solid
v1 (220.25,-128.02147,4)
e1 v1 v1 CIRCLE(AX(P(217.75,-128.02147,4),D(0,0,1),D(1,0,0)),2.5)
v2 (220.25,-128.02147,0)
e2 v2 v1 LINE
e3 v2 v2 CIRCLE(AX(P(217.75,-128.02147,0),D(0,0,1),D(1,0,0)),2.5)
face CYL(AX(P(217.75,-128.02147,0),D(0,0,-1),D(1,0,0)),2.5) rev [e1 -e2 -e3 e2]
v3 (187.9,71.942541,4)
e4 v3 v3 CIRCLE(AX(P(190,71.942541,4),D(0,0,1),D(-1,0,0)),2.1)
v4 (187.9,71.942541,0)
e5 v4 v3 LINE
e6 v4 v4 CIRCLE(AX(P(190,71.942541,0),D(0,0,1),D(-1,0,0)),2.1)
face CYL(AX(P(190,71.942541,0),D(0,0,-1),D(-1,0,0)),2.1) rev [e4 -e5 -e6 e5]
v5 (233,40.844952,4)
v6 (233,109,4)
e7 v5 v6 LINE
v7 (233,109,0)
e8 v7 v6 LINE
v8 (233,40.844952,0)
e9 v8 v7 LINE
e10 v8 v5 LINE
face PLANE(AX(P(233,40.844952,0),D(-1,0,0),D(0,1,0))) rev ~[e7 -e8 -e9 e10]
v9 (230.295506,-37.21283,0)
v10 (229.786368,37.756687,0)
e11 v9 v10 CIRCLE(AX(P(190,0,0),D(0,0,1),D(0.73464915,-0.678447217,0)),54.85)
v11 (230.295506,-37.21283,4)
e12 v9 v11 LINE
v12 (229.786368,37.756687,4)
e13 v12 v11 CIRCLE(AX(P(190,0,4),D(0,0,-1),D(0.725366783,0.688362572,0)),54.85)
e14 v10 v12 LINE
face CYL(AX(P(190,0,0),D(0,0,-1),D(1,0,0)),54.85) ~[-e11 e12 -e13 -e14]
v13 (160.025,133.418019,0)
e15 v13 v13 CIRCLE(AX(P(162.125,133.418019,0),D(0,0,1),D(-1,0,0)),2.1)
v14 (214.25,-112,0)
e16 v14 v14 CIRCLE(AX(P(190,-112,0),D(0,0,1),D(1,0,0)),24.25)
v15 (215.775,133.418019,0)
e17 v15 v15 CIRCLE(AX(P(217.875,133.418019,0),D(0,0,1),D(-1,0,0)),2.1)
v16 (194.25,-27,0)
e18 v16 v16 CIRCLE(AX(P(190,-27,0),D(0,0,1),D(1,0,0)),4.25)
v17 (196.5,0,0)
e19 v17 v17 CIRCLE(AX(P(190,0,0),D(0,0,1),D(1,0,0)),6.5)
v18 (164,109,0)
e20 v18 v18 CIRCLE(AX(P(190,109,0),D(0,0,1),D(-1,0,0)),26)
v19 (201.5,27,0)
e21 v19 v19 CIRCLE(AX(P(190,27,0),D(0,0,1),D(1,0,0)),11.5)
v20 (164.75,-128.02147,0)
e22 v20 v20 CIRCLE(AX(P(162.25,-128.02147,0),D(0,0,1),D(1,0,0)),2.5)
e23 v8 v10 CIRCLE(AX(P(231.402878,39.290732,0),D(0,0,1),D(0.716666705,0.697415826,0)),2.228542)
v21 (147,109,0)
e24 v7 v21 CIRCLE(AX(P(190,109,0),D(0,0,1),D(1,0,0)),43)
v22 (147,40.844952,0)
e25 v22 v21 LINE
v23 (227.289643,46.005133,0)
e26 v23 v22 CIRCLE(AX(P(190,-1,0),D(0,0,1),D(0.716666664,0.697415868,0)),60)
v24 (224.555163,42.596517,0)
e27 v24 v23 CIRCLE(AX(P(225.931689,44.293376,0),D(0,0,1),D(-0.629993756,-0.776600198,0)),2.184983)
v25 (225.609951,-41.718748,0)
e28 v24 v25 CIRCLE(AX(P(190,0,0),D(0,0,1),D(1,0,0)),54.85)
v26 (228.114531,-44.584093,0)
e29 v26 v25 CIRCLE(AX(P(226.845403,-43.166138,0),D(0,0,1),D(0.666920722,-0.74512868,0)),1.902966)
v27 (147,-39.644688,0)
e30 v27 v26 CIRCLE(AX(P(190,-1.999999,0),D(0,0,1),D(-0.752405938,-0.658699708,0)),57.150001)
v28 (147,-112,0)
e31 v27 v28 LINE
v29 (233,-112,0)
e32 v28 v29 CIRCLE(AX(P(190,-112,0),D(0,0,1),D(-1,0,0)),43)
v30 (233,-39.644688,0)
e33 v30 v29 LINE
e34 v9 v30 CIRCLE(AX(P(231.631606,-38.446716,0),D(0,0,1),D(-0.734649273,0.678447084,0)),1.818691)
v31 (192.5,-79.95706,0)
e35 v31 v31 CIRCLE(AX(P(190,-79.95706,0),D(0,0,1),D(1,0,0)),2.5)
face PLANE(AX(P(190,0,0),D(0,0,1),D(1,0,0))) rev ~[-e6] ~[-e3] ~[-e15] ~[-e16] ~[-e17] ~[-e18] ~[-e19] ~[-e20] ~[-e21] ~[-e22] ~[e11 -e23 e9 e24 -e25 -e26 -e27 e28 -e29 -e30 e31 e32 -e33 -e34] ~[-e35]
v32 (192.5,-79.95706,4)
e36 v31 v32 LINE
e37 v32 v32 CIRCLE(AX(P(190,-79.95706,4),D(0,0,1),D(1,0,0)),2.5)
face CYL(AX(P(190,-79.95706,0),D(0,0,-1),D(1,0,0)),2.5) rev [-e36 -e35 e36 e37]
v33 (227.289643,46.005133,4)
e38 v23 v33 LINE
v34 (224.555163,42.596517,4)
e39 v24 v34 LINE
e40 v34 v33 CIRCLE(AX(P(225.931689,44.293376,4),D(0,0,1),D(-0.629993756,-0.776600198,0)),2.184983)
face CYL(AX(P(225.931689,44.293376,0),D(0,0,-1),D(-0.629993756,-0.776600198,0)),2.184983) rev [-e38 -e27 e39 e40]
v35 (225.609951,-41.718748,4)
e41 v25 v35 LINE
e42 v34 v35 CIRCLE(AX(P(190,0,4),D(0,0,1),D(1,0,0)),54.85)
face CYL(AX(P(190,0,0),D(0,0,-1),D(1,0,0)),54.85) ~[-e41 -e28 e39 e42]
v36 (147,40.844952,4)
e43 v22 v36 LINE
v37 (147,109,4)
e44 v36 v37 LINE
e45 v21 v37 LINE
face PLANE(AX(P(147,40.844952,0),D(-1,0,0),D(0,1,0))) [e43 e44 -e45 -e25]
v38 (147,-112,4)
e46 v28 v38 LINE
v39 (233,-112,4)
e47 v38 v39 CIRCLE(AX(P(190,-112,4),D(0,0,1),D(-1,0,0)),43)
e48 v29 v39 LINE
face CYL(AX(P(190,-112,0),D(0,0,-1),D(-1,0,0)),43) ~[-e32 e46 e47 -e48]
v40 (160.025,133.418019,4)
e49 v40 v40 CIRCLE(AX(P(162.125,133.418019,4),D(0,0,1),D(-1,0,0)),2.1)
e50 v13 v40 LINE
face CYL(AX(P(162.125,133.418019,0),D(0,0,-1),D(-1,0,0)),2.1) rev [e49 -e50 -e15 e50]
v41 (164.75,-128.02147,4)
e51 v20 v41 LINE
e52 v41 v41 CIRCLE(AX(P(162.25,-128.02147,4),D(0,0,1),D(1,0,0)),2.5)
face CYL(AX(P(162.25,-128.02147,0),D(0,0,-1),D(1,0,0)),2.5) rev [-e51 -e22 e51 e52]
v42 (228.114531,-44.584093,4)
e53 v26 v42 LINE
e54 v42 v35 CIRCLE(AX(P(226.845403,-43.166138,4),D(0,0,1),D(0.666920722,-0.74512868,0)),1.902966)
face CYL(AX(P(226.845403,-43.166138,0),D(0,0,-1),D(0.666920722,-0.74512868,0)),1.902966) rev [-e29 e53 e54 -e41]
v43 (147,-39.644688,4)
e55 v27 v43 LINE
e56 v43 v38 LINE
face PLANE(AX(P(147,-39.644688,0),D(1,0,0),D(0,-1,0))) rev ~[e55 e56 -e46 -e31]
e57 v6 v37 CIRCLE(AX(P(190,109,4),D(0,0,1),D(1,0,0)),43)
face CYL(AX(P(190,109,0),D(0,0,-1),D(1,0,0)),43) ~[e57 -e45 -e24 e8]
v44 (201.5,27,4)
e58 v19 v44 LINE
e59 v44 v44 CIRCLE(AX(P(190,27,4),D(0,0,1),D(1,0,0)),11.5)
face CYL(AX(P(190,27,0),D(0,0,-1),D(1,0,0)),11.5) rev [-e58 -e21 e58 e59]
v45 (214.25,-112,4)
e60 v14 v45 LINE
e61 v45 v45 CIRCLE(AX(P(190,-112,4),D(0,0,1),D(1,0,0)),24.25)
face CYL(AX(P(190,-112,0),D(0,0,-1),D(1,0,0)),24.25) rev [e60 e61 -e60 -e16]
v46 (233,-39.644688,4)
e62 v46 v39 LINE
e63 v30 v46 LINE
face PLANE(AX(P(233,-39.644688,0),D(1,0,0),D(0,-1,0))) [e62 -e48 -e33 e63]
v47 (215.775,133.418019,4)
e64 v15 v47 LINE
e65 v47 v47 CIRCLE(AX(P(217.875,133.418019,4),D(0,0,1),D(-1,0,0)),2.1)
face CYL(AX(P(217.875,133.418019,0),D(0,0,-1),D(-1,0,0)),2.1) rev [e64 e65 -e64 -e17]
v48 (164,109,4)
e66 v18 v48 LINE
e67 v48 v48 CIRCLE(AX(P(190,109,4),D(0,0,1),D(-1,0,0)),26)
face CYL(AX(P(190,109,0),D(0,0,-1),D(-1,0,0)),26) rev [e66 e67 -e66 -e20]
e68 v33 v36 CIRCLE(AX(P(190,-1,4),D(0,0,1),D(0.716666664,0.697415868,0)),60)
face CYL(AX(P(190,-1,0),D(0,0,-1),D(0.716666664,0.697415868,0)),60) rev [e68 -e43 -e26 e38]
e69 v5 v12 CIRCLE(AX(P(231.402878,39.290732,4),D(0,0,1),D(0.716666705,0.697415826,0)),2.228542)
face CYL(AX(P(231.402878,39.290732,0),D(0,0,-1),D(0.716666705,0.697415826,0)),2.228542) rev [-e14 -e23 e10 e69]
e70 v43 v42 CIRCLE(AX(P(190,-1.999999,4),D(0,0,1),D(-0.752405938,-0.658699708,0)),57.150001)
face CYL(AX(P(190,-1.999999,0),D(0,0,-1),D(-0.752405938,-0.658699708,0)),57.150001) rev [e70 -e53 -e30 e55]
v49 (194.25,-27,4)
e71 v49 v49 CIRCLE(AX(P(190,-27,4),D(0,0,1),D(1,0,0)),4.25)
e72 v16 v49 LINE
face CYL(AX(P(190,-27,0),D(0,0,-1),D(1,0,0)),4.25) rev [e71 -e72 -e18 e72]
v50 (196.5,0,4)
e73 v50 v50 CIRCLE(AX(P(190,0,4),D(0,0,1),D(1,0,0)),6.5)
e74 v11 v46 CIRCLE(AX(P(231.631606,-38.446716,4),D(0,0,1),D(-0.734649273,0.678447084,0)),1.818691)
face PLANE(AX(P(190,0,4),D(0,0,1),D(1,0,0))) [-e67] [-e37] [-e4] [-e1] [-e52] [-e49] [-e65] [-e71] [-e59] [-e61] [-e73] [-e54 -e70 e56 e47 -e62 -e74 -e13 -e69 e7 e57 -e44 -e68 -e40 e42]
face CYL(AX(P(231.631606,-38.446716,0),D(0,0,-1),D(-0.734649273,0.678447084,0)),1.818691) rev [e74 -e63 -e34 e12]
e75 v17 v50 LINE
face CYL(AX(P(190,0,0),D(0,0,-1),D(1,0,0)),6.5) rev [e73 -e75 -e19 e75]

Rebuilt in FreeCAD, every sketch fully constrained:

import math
import FreeCAD as App
import Part
import Sketcher

doc = App.newDocument("Part")
body = doc.addObject("PartDesign::Body", "Body")

# Sketch on XY plane
sketch1 = doc.addObject("Sketcher::SketchObject", "Sketch")
body.addObject(sketch1)
sketch1.AttachmentSupport = (doc.XY_Plane, [""])
sketch1.MapMode = "FlatFace"
sketch1.AttachmentOffset = App.Placement(App.Vector(0, 0, 150), App.Rotation())
sketch1.addGeometry([
    Part.Circle(App.Vector(0, 0, 0), App.Vector(0, 0, 1), 54.9),
    Part.Circle(App.Vector(0, -27, 0), App.Vector(0, 0, 1), 4.2),
    Part.Circle(App.Vector(0, 0, 0), App.Vector(0, 0, 1), 6.5),
    Part.Circle(App.Vector(0, 27, 0), App.Vector(0, 0, 1), 11.5),
], False)
sketch1.addConstraint([
    Sketcher.Constraint("Coincident", 0, 3, -1, 1),
    Sketcher.Constraint("Coincident", 2, 3, -1, 1),
    Sketcher.Constraint("Symmetric", 1, 3, 3, 3, -1, 1),
    Sketcher.Constraint("PointOnObject", 1, 3, -2),
    Sketcher.Constraint("Diameter", 2, 13.0),
    Sketcher.Constraint("Diameter", 3, 23.0),
    Sketcher.Constraint("Diameter", 0, 109.7),
    Sketcher.Constraint("Diameter", 1, 8.5),
    Sketcher.Constraint("DistanceY", 1, 3, -1, 1, 27.0),
])
pad1 = doc.addObject("PartDesign::Pad", "Pad")
body.addObject(pad1)
pad1.Profile = sketch1
pad1.Length = 4
body2 = doc.addObject("PartDesign::Body", "Body001")
doc.recompute()

body.Placement = App.Placement(App.Vector(190, 0, -150), App.Rotation(App.Vector(0, 0, 1), 0))
boolean = doc.addObject("PartDesign::Boolean", "Boolean")
body2.addObject(boolean)
boolean.Type = "Fuse"
boolean.addObjects([body])
body3 = doc.addObject("PartDesign::Body", "Body002")
body3.AllowCompound = True

# Sketch on XY plane
sketch2 = doc.addObject("Sketcher::SketchObject", "Sketch001")
body3.addObject(sketch2)
sketch2.AttachmentSupport = (doc.getObject("XY_Plane002"), [""])
sketch2.MapMode = "FlatFace"
sketch2.addGeometry([
    Part.ArcOfCircle(Part.Circle(App.Vector(231.402878, 39.290732, 0), App.Vector(0, 0, 1), 2.228542), math.radians(44.220041), math.radians(223.500628)),  # 0
    Part.ArcOfCircle(Part.Circle(App.Vector(189.999941, -1.000065, 0), App.Vector(0, 0, 1), 60.000088), math.radians(44.22005), math.radians(51.574675)),  # 1
    Part.ArcOfCircle(Part.Circle(App.Vector(225.931689, 44.293376, 0), App.Vector(0, 0, 1), 2.184983), math.radians(-129.049662), math.radians(51.574685)),  # 2
    Part.ArcOfCircle(Part.Circle(App.Vector(190.00001, 0.000017, 0), App.Vector(0, 0, 1), 54.849981), math.radians(43.500626), math.radians(50.950328)),  # 3
    Part.ArcOfCircle(Part.Circle(App.Vector(231.631606, -38.446716, 0), App.Vector(0, 0, 1), 1.818691), math.radians(137.277588), math.radians(318.799194)),  # 4
    Part.ArcOfCircle(Part.Circle(App.Vector(189.999958, 0.000041, 0), App.Vector(0, 0, 1), 54.850059), math.radians(-49.516854), math.radians(-42.722424)),  # 5
    Part.ArcOfCircle(Part.Circle(App.Vector(226.845403, -43.166138, 0), App.Vector(0, 0, 1), 1.902966), math.radians(-48.170153), math.radians(130.483156)),  # 6
    Part.ArcOfCircle(Part.Circle(App.Vector(189.999978, -1.99997, 0), App.Vector(0, 0, 1), 57.150037), math.radians(-48.17014), math.radians(-41.200788)),  # 7
], False)
sketch2.addConstraint([
    Sketcher.Constraint("Coincident", 0, 1, 1, 1),
    Sketcher.Constraint("Coincident", 1, 2, 2, 2),
    Sketcher.Constraint("Coincident", 2, 1, 3, 2),
    Sketcher.Constraint("Coincident", 3, 1, 0, 2),
    Sketcher.Constraint("Coincident", 4, 1, 5, 2),
    Sketcher.Constraint("Coincident", 5, 1, 6, 2),
    Sketcher.Constraint("Coincident", 6, 1, 7, 1),
    Sketcher.Constraint("Coincident", 7, 2, 4, 2),
    Sketcher.Constraint("DistanceX", -1, 1, 0, 1, 233.0),
    Sketcher.Constraint("DistanceX", -1, 1, 7, 2, 233.0),
    Sketcher.Constraint("Radius", 0, 2.228542),
    Sketcher.Constraint("Radius", 3, 54.849981),
    Sketcher.Constraint("Radius", 4, 1.818691),
    Sketcher.Constraint("Radius", 5, 54.850059),
    Sketcher.Constraint("Radius", 1, 60.000088),
    Sketcher.Constraint("Radius", 2, 2.184983),
    Sketcher.Constraint("Radius", 6, 1.902966),
    Sketcher.Constraint("Radius", 7, 57.150037),
    Sketcher.Constraint("DistanceY", 0, 3, 1, 2, 6.714401),
    Sketcher.Constraint("DistanceY", 3, 3, 2, 1, 42.5965),
    Sketcher.Constraint("DistanceX", 4, 1, 4, 3, 1.3361),
    Sketcher.Constraint("DistanceX", -1, 1, 0, 3, 231.402878),
    Sketcher.Constraint("DistanceY", -1, 1, 0, 3, 39.290732),
    Sketcher.Constraint("DistanceX", -1, 1, 1, 3, 189.999941),
    Sketcher.Constraint("DistanceX", -1, 1, 2, 3, 225.931689),
    Sketcher.Constraint("DistanceX", -1, 1, 5, 3, 189.999958),
    Sketcher.Constraint("DistanceY", 6, 3, -1, 1, 43.166138),
    Sketcher.Constraint("DistanceX", -1, 1, 7, 3, 189.999978),
    Sketcher.Constraint("DistanceY", 7, 3, -1, 1, 1.99997),
    Sketcher.Constraint("DistanceX", -1, 1, 3, 1, 229.786368),
    Sketcher.Constraint("DistanceX", -1, 1, 5, 1, 225.609951),
    Sketcher.Constraint("DistanceX", -1, 1, 6, 1, 228.114531),
])
pad2 = doc.addObject("PartDesign::Pad", "Pad001")
body3.addObject(pad2)
pad2.Profile = sketch2
pad2.Length = 4
doc.recompute()

boolean2 = doc.addObject("PartDesign::Boolean", "Boolean001")
body3.addObject(boolean2)
boolean2.Type = "Fuse"
boolean2.addObjects([body2])
body4 = doc.addObject("PartDesign::Body", "Body003")

# Sketch on XY plane
sketch3 = doc.addObject("Sketcher::SketchObject", "Sketch002")
body4.addObject(sketch3)
sketch3.AttachmentSupport = (doc.getObject("XY_Plane003"), [""])
sketch3.MapMode = "FlatFace"
sketch3.addGeometry([
    Part.ArcOfCircle(Part.Circle(App.Vector(0, 0, 0), App.Vector(0, 0, 1), 57.2), math.radians(-139), math.radians(-41)),  # 0
    Part.LineSegment(App.Vector(-43, -37.6, 0), App.Vector(-43, -110, 0)),  # 1
    Part.ArcOfCircle(Part.Circle(App.Vector(0, -110, 0), App.Vector(0, 0, 1), 43), math.radians(180), math.radians(360)),  # 2
    Part.LineSegment(App.Vector(43, -110, 0), App.Vector(43, -37.6, 0)),  # 3
    Part.Circle(App.Vector(27.8, -126, 0), App.Vector(0, 0, 1), 2.5),  # 4
    Part.Circle(App.Vector(-27.8, -126, 0), App.Vector(0, 0, 1), 2.5),  # 5
    Part.Circle(App.Vector(0, -110, 0), App.Vector(0, 0, 1), 24.2),  # 6
    Part.Circle(App.Vector(0, -78, 0), App.Vector(0, 0, 1), 2.5),  # 7
], False)
sketch3.addConstraint([
    Sketcher.Constraint("Coincident", 0, 1, 1, 1),
    Sketcher.Constraint("Tangent", 1, 2, 2, 1),
    Sketcher.Constraint("Tangent", 2, 2, 3, 1),
    Sketcher.Constraint("Coincident", 3, 2, 0, 2),
    Sketcher.Constraint("Vertical", 1),
    Sketcher.Constraint("Vertical", 3),
    Sketcher.Constraint("Coincident", 0, 3, -1, 1),
    Sketcher.Constraint("Coincident", 6, 3, 2, 3),
    Sketcher.Constraint("Equal", 4, 5),
    Sketcher.Constraint("Equal", 5, 7),
    Sketcher.Constraint("Symmetric", 4, 3, 5, 3, -2),
    Sketcher.Constraint("PointOnObject", 2, 3, -2),
    Sketcher.Constraint("PointOnObject", 7, 3, -2),
    Sketcher.Constraint("Diameter", 4, 5.0),
    Sketcher.Constraint("Radius", 2, 43.0),
    Sketcher.Constraint("Diameter", 6, 48.5),
    Sketcher.Constraint("Radius", 0, 57.150001),
    Sketcher.Constraint("DistanceY", 2, 3, -1, 1, 110.0),
    Sketcher.Constraint("DistanceX", 5, 3, 4, 3, 55.5),
    Sketcher.Constraint("DistanceY", 4, 3, -1, 1, 126.02147),
    Sketcher.Constraint("DistanceY", 7, 3, -1, 1, 77.95706),
])
pad3 = doc.addObject("PartDesign::Pad", "Pad002")
body4.addObject(pad3)
pad3.Profile = sketch3
pad3.Length = 4
body5 = doc.addObject("PartDesign::Body", "Body004")
doc.recompute()

body4.Placement = App.Placement(App.Vector(190, -2, 0), App.Rotation(App.Vector(0, 0, 1), 0))
boolean3 = doc.addObject("PartDesign::Boolean", "Boolean002")
body5.addObject(boolean3)
boolean3.Type = "Fuse"
boolean3.addObjects([body4])
doc.recompute()

boolean4 = doc.addObject("PartDesign::Boolean", "Boolean003")
body5.addObject(boolean4)
boolean4.Type = "Fuse"
boolean4.addObjects([body3])
body6 = doc.addObject("PartDesign::Body", "Body005")

# Sketch on XY plane
sketch4 = doc.addObject("Sketcher::SketchObject", "Sketch003")
body6.addObject(sketch4)
sketch4.AttachmentSupport = (doc.getObject("XY_Plane005"), [""])
sketch4.MapMode = "FlatFace"
sketch4.addGeometry([
    Part.ArcOfCircle(Part.Circle(App.Vector(0, 0, 0), App.Vector(0, 0, 1), 60), math.radians(-136), math.radians(-44)),  # 0
    Part.LineSegment(App.Vector(-43, -41.8, 0), App.Vector(-43, -110, 0)),  # 1
    Part.ArcOfCircle(Part.Circle(App.Vector(0, -110, 0), App.Vector(0, 0, 1), 43), math.radians(180), math.radians(360)),  # 2
    Part.LineSegment(App.Vector(43, -110, 0), App.Vector(43, -41.8, 0)),  # 3
    Part.Circle(App.Vector(27.9, -134.4, 0), App.Vector(0, 0, 1), 2.1),  # 4
    Part.Circle(App.Vector(-27.9, -134.4, 0), App.Vector(0, 0, 1), 2.1),  # 5
    Part.Circle(App.Vector(0, -110, 0), App.Vector(0, 0, 1), 26),  # 6
    Part.Circle(App.Vector(0, -72.9, 0), App.Vector(0, 0, 1), 2.1),  # 7
], False)
sketch4.addConstraint([
    Sketcher.Constraint("Coincident", 0, 1, 1, 1),
    Sketcher.Constraint("Tangent", 1, 2, 2, 1),
    Sketcher.Constraint("Tangent", 2, 2, 3, 1),
    Sketcher.Constraint("Coincident", 3, 2, 0, 2),
    Sketcher.Constraint("Vertical", 1),
    Sketcher.Constraint("Vertical", 3),
    Sketcher.Constraint("Coincident", 0, 3, -1, 1),
    Sketcher.Constraint("Coincident", 6, 3, 2, 3),
    Sketcher.Constraint("Equal", 4, 5),
    Sketcher.Constraint("Equal", 5, 7),
    Sketcher.Constraint("Symmetric", 4, 3, 5, 3, -2),
    Sketcher.Constraint("PointOnObject", 2, 3, -2),
    Sketcher.Constraint("PointOnObject", 7, 3, -2),
    Sketcher.Constraint("Diameter", 6, 52.0),
    Sketcher.Constraint("Radius", 0, 60.0),
    Sketcher.Constraint("Radius", 2, 43.0),
    Sketcher.Constraint("Diameter", 4, 4.2),
    Sketcher.Constraint("DistanceY", 2, 3, -1, 1, 110.0),
    Sketcher.Constraint("DistanceX", 5, 3, 4, 3, 55.75),
    Sketcher.Constraint("DistanceY", 4, 3, -1, 1, 134.418019),
    Sketcher.Constraint("DistanceY", 7, 3, -1, 1, 72.942541),
])
pad4 = doc.addObject("PartDesign::Pad", "Pad003")
body6.addObject(pad4)
pad4.Profile = sketch4
pad4.Length = 4
body7 = doc.addObject("PartDesign::Body", "Body006")
doc.recompute()

body6.Placement = App.Placement(App.Vector(190, -1, 0), App.Rotation(App.Vector(0, 0, 1), 180))
boolean5 = doc.addObject("PartDesign::Boolean", "Boolean004")
body7.addObject(boolean5)
boolean5.Type = "Fuse"
boolean5.addObjects([body6])
doc.recompute()

boolean6 = doc.addObject("PartDesign::Boolean", "Boolean005")
body7.addObject(boolean6)
boolean6.Type = "Fuse"
boolean6.addObjects([body5])

doc.recompute()
